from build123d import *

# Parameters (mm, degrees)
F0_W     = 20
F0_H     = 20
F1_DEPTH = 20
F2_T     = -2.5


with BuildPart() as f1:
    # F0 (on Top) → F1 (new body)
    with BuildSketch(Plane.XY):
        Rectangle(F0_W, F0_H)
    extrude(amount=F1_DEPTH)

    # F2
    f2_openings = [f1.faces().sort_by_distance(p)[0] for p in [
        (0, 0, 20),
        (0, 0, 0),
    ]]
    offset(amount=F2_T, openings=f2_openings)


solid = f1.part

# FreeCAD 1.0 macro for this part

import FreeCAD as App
import Part
import Sketcher

V = App.Vector


def faces_at(feature, points):
    """Names of the faces that lie closest to the given points."""
    faces = feature.Shape.Faces
    near = lambda p: min(range(len(faces)), key=lambda i: faces[i].distToShape(Part.Vertex(*p))[0])
    return sorted({f"Face{near(p) + 1}" for p in points})


def add_polygon(sketch, points):
    """Adds a closed chain of lines whose ends are joined by coincident constraints."""
    first, n = sketch.GeometryCount, len(points)
    for a, b in zip(points, points[1:] + points[:1]):
        sketch.addGeometry(Part.LineSegment(App.Vector(*a, 0), App.Vector(*b, 0)), False)
    for i in range(n):
        sketch.addConstraint(Sketcher.Constraint("Coincident", first + i, 2, first + (i + 1) % n, 1))

doc = App.newDocument("Part")
params = doc.addObject("Spreadsheet::Sheet", "Params")
for row, (alias, value) in enumerate([
    ("sketch1_width", "20 mm"),
    ("pad1_length", "20 mm"),
    ("thickness_wall", "2.5 mm"),
], start=1):
    params.set(f"A{row}", alias)
    params.set(f"B{row}", "=" + value)
    params.setAlias(f"B{row}", alias)

body = doc.addObject("PartDesign::Body", "Body")

sketch1 = doc.addObject("Sketcher::SketchObject", "Sketch")
body.addObject(sketch1)
sketch1.AttachmentSupport = (doc.XY_Plane, [""])
sketch1.MapMode = "FlatFace"
add_polygon(sketch1, [(-10, 10), (-10, -10), (10, -10), (10, 10)])
sketch1.addConstraint([
    Sketcher.Constraint("Vertical", 0),
    Sketcher.Constraint("Horizontal", 1),
    Sketcher.Constraint("Vertical", 2),
    Sketcher.Constraint("Horizontal", 3),
    Sketcher.Constraint("Symmetric", 0, 2, 2, 2, -1, 1),
    Sketcher.Constraint("Equal", 3, 0),
    Sketcher.Constraint("DistanceX", 1, 1, 1, 2, 20.0),
])
sketch1.setExpression("Constraints[10]", "Params.sketch1_width")
pad1 = doc.addObject("PartDesign::Pad", "Pad")
body.addObject(pad1)
pad1.Profile = sketch1
pad1.setExpression("Length", "Params.pad1_length")
doc.recompute()

thickness = doc.addObject("PartDesign::Thickness", "Thickness")
body.addObject(thickness)
thickness.Base = (pad1, faces_at(pad1, [(0, 0, 20), (0, 0, 0)]))
thickness.setExpression("Value", "Params.thickness_wall")
thickness.Reversed = True
thickness.Join = "Arc"

doc.recompute()
